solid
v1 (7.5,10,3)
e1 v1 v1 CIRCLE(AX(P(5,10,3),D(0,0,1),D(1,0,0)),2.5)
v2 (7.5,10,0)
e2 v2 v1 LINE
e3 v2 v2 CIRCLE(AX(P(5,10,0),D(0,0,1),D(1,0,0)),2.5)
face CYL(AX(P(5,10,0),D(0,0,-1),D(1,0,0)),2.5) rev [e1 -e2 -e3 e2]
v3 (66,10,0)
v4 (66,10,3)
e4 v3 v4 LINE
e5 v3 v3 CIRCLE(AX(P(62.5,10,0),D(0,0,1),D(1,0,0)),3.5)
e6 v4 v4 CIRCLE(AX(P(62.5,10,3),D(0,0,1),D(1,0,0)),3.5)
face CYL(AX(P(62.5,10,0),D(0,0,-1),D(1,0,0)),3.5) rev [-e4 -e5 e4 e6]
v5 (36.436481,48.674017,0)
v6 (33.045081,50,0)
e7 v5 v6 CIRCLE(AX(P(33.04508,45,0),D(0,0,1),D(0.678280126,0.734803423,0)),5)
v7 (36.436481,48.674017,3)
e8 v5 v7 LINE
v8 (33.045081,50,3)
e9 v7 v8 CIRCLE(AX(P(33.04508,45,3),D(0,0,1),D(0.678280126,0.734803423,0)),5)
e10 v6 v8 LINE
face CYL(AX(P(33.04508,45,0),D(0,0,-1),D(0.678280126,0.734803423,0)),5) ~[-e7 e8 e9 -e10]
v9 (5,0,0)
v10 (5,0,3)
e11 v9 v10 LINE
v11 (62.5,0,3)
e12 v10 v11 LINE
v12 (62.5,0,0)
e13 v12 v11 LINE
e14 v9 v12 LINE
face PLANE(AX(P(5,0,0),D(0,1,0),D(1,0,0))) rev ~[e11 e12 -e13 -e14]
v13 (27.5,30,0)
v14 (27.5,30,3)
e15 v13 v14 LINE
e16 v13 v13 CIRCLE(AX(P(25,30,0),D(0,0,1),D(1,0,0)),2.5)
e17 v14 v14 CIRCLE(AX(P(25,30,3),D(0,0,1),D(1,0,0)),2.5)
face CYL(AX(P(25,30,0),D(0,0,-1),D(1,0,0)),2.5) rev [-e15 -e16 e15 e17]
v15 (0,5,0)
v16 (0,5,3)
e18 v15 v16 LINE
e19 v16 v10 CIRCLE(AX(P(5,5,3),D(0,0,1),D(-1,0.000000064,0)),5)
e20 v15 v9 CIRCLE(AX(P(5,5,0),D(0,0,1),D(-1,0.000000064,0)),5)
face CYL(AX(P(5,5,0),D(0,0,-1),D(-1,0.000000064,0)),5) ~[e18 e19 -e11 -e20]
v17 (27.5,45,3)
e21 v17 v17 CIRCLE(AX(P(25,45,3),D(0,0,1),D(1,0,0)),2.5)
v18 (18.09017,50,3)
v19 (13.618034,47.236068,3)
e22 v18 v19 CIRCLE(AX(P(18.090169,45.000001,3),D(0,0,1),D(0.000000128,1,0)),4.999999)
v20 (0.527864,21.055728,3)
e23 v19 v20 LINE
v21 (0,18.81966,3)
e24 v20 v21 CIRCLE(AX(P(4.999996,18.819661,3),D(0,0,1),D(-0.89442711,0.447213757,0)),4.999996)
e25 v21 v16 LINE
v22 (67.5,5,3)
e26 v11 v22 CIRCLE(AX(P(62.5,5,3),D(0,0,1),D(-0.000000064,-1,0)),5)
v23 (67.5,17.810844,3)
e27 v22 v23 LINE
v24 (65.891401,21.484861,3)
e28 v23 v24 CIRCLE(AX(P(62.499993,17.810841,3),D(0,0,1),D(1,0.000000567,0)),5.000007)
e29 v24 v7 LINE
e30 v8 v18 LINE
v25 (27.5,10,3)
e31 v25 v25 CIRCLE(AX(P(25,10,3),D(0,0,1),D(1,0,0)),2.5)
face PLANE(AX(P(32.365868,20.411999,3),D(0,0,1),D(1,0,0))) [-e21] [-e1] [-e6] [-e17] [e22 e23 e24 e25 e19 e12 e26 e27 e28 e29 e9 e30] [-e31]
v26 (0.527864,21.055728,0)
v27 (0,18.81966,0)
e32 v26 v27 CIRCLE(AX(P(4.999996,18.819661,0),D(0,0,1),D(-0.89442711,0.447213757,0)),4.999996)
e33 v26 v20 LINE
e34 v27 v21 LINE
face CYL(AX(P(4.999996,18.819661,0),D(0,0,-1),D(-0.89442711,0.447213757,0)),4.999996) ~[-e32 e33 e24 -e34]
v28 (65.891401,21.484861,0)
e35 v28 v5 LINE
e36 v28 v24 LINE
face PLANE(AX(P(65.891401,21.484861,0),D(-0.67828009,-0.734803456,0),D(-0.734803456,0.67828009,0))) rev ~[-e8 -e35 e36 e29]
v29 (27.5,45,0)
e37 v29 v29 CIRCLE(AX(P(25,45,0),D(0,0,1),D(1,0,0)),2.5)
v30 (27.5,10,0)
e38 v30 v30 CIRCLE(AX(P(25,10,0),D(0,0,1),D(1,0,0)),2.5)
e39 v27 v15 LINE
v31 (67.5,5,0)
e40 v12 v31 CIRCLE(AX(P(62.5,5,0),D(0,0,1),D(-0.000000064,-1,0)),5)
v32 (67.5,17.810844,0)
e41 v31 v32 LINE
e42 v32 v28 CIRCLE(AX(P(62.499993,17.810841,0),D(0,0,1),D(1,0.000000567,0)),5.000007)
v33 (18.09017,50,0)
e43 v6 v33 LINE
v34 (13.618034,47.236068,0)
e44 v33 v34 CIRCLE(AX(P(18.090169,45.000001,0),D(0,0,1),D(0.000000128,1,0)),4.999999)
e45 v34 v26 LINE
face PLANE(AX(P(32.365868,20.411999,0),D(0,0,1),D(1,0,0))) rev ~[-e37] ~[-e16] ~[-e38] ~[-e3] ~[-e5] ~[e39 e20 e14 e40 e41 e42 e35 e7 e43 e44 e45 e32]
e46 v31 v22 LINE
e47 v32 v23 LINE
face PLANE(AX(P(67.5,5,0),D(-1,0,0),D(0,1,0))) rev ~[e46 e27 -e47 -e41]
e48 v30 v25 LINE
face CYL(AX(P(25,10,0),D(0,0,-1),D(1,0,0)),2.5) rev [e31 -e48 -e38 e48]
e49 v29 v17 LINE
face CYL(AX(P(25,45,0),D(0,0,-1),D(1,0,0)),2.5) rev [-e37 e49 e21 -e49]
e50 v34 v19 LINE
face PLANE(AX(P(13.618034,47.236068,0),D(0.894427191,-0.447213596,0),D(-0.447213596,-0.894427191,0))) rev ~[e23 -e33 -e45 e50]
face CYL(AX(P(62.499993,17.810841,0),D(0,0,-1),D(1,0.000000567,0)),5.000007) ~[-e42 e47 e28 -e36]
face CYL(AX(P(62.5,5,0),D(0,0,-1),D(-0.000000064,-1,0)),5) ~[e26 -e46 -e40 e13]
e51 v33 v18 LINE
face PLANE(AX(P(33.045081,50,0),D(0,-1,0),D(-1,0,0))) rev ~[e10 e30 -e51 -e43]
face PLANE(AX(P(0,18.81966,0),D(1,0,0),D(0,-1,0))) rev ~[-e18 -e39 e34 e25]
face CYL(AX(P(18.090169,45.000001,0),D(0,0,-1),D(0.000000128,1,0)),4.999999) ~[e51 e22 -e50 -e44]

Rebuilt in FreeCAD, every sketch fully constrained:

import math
import FreeCAD as App
import Part
import Sketcher
Q = App.Units.Quantity

doc = App.newDocument("Part")
body = doc.addObject("PartDesign::Body", "Body")

# Sketch on XY plane
sketch1 = body.newObject("Sketcher::SketchObject", "Sketch")
sketch1.AttachmentSupport = (doc.getObject("XY_Plane"), [""])
sketch1.MapMode = "FlatFace"
sketch1.addGeometry([
    Part.LineSegment(App.Vector(0, 18.81966, 0), App.Vector(0, 5, 0)),  # 0
    Part.ArcOfCircle(Part.Circle(App.Vector(5, 5, 0), App.Vector(0, 0, 1), 5), math.radians(179.999996), math.radians(270.000004)),  # 1
    Part.LineSegment(App.Vector(5, 0, 0), App.Vector(62.5, 0, 0)),  # 2
    Part.ArcOfCircle(Part.Circle(App.Vector(62.5, 5, 0), App.Vector(0, 0, 1), 5), math.radians(-90.000004), math.radians(0.000004)),  # 3
    Part.LineSegment(App.Vector(67.5, 5, 0), App.Vector(67.5, 17.810844, 0)),  # 4
    Part.ArcOfCircle(Part.Circle(App.Vector(62.499993, 17.810841, 0), App.Vector(0, 0, 1), 5.000007), math.radians(0.000032), math.radians(47.290567)),  # 5
    Part.LineSegment(App.Vector(65.891401, 21.484861, 0), App.Vector(36.436481, 48.674017, 0)),  # 6
    Part.ArcOfCircle(Part.Circle(App.Vector(33.04508, 45, 0), App.Vector(0, 0, 1), 5), math.radians(47.290608), math.radians(89.999989)),  # 7
    Part.LineSegment(App.Vector(33.045081, 50, 0), App.Vector(18.09017, 50, 0)),  # 8
    Part.ArcOfCircle(Part.Circle(App.Vector(18.090169, 45.000001, 0), App.Vector(0, 0, 1), 4.999999), math.radians(89.999993), math.radians(153.434955)),  # 9
    Part.LineSegment(App.Vector(13.618034, 47.236068, 0), App.Vector(0.527864, 21.055728, 0)),  # 10
    Part.ArcOfCircle(Part.Circle(App.Vector(4.999996, 18.819661, 0), App.Vector(0, 0, 1), 4.999996), math.radians(153.434938), math.radians(180.000013)),  # 11
    Part.Circle(App.Vector(5, 10, 0), App.Vector(0, 0, 1), 2.5),  # 12
    Part.Circle(App.Vector(25, 10, 0), App.Vector(0, 0, 1), 2.5),  # 13
    Part.Circle(App.Vector(62.5, 10, 0), App.Vector(0, 0, 1), 3.5),  # 14
    Part.Circle(App.Vector(25, 30, 0), App.Vector(0, 0, 1), 2.5),  # 15
    Part.Circle(App.Vector(25, 45, 0), App.Vector(0, 0, 1), 2.5),  # 16
], False)
sketch1.addConstraint([
    Sketcher.Constraint("Coincident", 0, 2, 1, 1),
    Sketcher.Constraint("Coincident", 1, 2, 2, 1),
    Sketcher.Constraint("Coincident", 2, 2, 3, 1),
    Sketcher.Constraint("Coincident", 3, 2, 4, 1),
    Sketcher.Constraint("Coincident", 4, 2, 5, 1),
    Sketcher.Constraint("Coincident", 5, 2, 6, 1),
    Sketcher.Constraint("Coincident", 6, 2, 7, 1),
    Sketcher.Constraint("Coincident", 7, 2, 8, 1),
    Sketcher.Constraint("Coincident", 8, 2, 9, 1),
    Sketcher.Constraint("Coincident", 9, 2, 10, 1),
    Sketcher.Constraint("Coincident", 10, 2, 11, 1),
    Sketcher.Constraint("Coincident", 11, 2, 0, 1),
    Sketcher.Constraint("Vertical", 0),
    Sketcher.Constraint("Horizontal", 2),
    Sketcher.Constraint("Vertical", 4),
    Sketcher.Constraint("Horizontal", 8),
    Sketcher.Constraint("PointOnObject", 0, 2, -2),
    Sketcher.Constraint("PointOnObject", 1, 2, -1),
    Sketcher.Constraint("Diameter", 12, Q("5 mm")),
    Sketcher.Constraint("Diameter", 13, Q("5 mm")),
    Sketcher.Constraint("Diameter", 14, Q("7 mm")),
    Sketcher.Constraint("Diameter", 15, Q("5 mm")),
    Sketcher.Constraint("Diameter", 16, Q("5 mm")),
    Sketcher.Constraint("Radius", 1, Q("5 mm")),
    Sketcher.Constraint("Radius", 3, Q("5 mm")),
    Sketcher.Constraint("Radius", 7, Q("5 mm")),
    Sketcher.Constraint("Radius", 9, Q("4.999999 mm")),
    Sketcher.Constraint("DistanceX", 2, 1, 2, 2, Q("57.5 mm")),
    Sketcher.Constraint("DistanceY", -1, 1, 7, 3, Q("45 mm")),
    Sketcher.Constraint("DistanceX", -1, 1, 12, 3, Q("5 mm")),
    Sketcher.Constraint("DistanceY", -1, 1, 12, 3, Q("10 mm")),
    Sketcher.Constraint("DistanceX", -1, 1, 13, 3, Q("25 mm")),
    Sketcher.Constraint("DistanceY", -1, 1, 13, 3, Q("10 mm")),
    Sketcher.Constraint("DistanceY", -1, 1, 14, 3, Q("10 mm")),
    Sketcher.Constraint("DistanceX", -1, 1, 15, 3, Q("25 mm")),
    Sketcher.Constraint("DistanceY", -1, 1, 15, 3, Q("30 mm")),
    Sketcher.Constraint("DistanceX", -1, 1, 16, 3, Q("25 mm")),
    Sketcher.Constraint("DistanceY", -1, 1, 16, 3, Q("45 mm")),
    Sketcher.Constraint("DistanceY", -1, 1, 0, 2, Q("5 mm")),
    Sketcher.Constraint("DistanceX", -1, 1, 1, 2, Q("5 mm")),
    Sketcher.Constraint("DistanceY", -1, 1, 3, 2, Q("5 mm")),
    Sketcher.Constraint("DistanceX", 14, 3, 3, 2, Q("5 mm")),
    Sketcher.Constraint("DistanceX", 2, 2, 3, 2, Q("5 mm")),
    Sketcher.Constraint("Radius", 5, Q("5.000007 mm")),
    Sketcher.Constraint("Radius", 11, Q("4.999996 mm")),
    Sketcher.Constraint("DistanceX", 8, 2, 8, 1, Q("14.954911 mm")),
    Sketcher.Constraint("DistanceY", 0, 2, 0, 1, Q("13.81966 mm")),
    Sketcher.Constraint("DistanceX", -1, 1, 5, 2, Q("65.891401 mm")),
    Sketcher.Constraint("DistanceX", 7, 3, 6, 2, Q("3.391401 mm")),
    Sketcher.Constraint("DistanceX", 7, 2, 6, 2, Q("3.3914 mm")),
    Sketcher.Constraint("Distance", 6, Q("40.08544 mm")),
    Sketcher.Constraint("Distance", 10, Q("29.27051 mm")),
    Sketcher.Constraint("DistanceY", 4, 1, 4, 2, Q("12.810844 mm")),
    Sketcher.Constraint("DistanceY", -1, 1, 5, 3, Q("17.810841 mm")),
    Sketcher.Constraint("DistanceX", -1, 1, 9, 3, Q("18.090169 mm")),
    Sketcher.Constraint("DistanceY", -1, 1, 11, 3, Q("18.819661 mm")),
    Sketcher.Constraint("DistanceY", 7, 3, 9, 2, Q("2.236068 mm")),
])
pad1 = body.newObject("PartDesign::Pad", "Pad")
pad1.Profile = sketch1
pad1.Length = 3

doc.recompute()
